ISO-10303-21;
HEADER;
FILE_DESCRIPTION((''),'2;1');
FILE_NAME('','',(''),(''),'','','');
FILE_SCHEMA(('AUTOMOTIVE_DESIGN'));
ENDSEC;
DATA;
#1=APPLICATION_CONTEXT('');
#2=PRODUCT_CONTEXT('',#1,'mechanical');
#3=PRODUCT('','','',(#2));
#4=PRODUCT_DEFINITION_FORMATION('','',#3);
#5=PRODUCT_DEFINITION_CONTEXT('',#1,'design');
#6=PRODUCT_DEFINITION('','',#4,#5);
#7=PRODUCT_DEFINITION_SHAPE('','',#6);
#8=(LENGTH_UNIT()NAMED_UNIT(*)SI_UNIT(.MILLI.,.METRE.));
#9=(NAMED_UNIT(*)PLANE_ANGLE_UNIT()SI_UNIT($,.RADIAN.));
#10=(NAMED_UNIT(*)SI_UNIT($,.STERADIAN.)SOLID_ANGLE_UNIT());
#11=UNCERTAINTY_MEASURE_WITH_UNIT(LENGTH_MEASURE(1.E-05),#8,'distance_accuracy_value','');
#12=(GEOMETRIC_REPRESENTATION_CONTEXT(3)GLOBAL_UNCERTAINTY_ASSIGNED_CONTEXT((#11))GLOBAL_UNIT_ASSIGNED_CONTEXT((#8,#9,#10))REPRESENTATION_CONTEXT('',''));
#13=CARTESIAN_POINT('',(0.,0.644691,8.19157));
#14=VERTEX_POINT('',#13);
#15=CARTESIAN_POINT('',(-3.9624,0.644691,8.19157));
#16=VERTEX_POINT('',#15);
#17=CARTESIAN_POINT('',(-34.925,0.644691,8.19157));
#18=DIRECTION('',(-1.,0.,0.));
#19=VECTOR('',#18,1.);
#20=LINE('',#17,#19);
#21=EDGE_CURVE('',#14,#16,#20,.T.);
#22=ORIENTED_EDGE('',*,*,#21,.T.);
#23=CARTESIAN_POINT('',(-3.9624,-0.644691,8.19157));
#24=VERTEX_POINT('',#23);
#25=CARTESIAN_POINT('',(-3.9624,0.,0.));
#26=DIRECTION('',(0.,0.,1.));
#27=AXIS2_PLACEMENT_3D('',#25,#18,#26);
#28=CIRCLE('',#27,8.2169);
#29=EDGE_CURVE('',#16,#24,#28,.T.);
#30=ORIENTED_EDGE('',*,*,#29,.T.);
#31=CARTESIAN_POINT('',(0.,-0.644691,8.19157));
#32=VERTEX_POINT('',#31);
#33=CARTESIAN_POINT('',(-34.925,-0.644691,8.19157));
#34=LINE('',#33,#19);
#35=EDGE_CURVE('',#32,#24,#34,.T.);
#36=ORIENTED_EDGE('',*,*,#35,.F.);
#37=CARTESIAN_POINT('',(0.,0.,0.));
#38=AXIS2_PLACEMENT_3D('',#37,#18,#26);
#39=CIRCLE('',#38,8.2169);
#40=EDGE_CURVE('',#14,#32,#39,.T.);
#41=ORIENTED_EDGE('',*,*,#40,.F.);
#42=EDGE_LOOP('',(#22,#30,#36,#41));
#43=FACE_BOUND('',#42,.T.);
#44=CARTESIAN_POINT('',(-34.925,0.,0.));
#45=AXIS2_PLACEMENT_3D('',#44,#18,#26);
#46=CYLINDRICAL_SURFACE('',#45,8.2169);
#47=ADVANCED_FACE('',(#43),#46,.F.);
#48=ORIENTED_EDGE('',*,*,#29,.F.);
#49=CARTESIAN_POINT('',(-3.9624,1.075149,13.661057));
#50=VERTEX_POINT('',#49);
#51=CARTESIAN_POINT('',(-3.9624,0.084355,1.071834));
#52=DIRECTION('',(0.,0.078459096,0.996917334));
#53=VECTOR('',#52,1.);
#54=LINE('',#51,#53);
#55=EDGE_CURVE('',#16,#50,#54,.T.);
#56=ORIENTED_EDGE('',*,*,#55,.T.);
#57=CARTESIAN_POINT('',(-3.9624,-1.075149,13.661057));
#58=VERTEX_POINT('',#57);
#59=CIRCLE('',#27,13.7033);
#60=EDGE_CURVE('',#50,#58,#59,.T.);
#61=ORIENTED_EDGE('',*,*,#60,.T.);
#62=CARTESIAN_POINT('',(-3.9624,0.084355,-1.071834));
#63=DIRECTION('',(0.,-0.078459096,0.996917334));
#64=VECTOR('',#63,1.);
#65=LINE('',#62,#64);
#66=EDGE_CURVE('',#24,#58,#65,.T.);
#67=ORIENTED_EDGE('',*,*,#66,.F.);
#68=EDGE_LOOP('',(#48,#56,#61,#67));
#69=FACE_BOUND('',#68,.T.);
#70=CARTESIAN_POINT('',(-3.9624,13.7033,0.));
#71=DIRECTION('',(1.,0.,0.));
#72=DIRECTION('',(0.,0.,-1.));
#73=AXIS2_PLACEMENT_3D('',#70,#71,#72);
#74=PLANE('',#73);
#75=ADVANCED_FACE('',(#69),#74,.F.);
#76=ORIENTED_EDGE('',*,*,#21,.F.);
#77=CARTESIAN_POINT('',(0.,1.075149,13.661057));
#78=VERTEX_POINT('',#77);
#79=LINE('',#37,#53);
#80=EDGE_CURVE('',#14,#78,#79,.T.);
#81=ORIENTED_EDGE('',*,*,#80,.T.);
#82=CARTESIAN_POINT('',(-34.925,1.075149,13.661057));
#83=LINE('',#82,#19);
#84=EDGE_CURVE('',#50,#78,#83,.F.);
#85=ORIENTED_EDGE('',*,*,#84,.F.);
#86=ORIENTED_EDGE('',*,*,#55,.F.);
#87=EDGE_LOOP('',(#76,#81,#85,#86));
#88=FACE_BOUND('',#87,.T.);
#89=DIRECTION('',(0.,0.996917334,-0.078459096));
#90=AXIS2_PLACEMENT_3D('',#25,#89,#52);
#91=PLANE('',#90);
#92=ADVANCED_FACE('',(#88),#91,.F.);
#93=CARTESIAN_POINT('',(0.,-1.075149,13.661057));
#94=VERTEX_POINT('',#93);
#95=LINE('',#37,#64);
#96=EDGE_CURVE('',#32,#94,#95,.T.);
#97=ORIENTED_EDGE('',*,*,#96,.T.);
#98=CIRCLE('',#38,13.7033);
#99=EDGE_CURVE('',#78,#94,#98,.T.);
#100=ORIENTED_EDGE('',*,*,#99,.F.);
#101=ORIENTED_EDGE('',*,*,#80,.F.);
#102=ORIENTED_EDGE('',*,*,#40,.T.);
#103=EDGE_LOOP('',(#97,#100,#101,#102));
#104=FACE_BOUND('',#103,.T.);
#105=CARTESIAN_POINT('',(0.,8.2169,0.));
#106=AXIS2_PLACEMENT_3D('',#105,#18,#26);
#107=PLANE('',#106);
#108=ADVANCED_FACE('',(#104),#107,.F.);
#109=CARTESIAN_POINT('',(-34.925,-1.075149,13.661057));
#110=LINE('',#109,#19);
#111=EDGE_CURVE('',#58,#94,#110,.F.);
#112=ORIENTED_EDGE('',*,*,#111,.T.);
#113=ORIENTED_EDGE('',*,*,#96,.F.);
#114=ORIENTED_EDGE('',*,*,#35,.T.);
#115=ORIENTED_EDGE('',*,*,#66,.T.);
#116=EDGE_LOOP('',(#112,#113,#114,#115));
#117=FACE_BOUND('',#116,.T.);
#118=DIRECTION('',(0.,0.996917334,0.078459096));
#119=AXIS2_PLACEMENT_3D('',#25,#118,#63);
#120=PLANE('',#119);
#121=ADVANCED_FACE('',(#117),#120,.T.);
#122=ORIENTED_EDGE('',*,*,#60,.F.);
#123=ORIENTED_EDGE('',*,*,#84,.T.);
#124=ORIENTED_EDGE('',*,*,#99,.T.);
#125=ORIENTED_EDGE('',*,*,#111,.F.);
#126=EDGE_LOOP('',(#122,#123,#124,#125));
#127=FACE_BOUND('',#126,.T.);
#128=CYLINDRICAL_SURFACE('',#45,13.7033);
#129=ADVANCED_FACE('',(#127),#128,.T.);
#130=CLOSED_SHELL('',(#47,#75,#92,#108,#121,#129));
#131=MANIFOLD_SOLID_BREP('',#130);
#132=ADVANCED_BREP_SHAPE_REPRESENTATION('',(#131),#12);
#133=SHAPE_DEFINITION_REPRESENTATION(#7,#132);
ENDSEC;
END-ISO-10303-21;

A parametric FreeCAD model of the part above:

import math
import FreeCAD as App
import Part
import Sketcher
Q = App.Units.Quantity

doc = App.newDocument("Part")
body = doc.addObject("PartDesign::Body", "Body")

# Sketch on XY plane
sketch1 = body.newObject("Sketcher::SketchObject", "Sketch")
sketch1.AttachmentSupport = (doc.getObject("XY_Plane"), [""])
sketch1.MapMode = "FlatFace"
sketch1.addGeometry(Part.LineSegment(App.Vector(-4, 13.7, 0), App.Vector(-4, 8.2, 0)), False)
sketch1.addGeometry(Part.LineSegment(App.Vector(-4, 8.2, 0), App.Vector(0, 8.2, 0)), False)
sketch1.addGeometry(Part.LineSegment(App.Vector(0, 8.2, 0), App.Vector(0, 13.7, 0)), False)
sketch1.addGeometry(Part.LineSegment(App.Vector(0, 13.7, 0), App.Vector(-4, 13.7, 0)), False)
sketch1.addConstraint(Sketcher.Constraint("Coincident", 0, 2, 1, 1))
sketch1.addConstraint(Sketcher.Constraint("Coincident", 1, 2, 2, 1))
sketch1.addConstraint(Sketcher.Constraint("Coincident", 2, 2, 3, 1))
sketch1.addConstraint(Sketcher.Constraint("Coincident", 3, 2, 0, 1))
sketch1.addConstraint(Sketcher.Constraint("Vertical", 0))
sketch1.addConstraint(Sketcher.Constraint("Horizontal", 1))
sketch1.addConstraint(Sketcher.Constraint("Vertical", 2))
sketch1.addConstraint(Sketcher.Constraint("Horizontal", 3))
sketch1.addConstraint(Sketcher.Constraint("PointOnObject", 1, 2, -2))
sketch1.addConstraint(Sketcher.Constraint("DistanceX", 1, 1, 1, 2, Q("0.156 in")))
sketch1.addConstraint(Sketcher.Constraint("DistanceY", 0, 2, 0, 1, Q("0.216 in")))
sketch1.addConstraint(Sketcher.Constraint("DistanceY", -1, 1, 0, 2, Q("0.3235 in")))
revolution = body.newObject("PartDesign::Revolution", "Revolution")
revolution.Profile = sketch1
revolution.ReferenceAxis = (sketch1, ["H_Axis"])
revolution.Angle = 360

# Sketch on YZ plane
sketch2 = body.newObject("Sketcher::SketchObject", "Sketch001")
sketch2.AttachmentSupport = (doc.getObject("YZ_Plane"), [""])
sketch2.MapMode = "FlatFace"
sketch2.addGeometry(Part.LineSegment(App.Vector(0, 0, 0), App.Vector(-1.1, 13.9, 0)), False)
sketch2.addGeometry(Part.ArcOfCircle(Part.Circle(App.Vector(0, 0, 0), App.Vector(0, 0, 1), 14), math.radians(85.5), math.radians(94.5)), False)
sketch2.addGeometry(Part.LineSegment(App.Vector(1.1, 13.9, 0), App.Vector(0, 0, 0)), False)
sketch2.addConstraint(Sketcher.Constraint("Coincident", 0, 2, 1, 2))
sketch2.addConstraint(Sketcher.Constraint("Coincident", 1, 1, 2, 1))
sketch2.addConstraint(Sketcher.Constraint("Coincident", 2, 2, 0, 1))
sketch2.addConstraint(Sketcher.Constraint("Coincident", 1, 3, -1, 1))
sketch2.addConstraint(Sketcher.Constraint("Coincident", 2, 2, -1, 1))
sketch2.addConstraint(Sketcher.Constraint("Horizontal", 0, 2, 1, 1))
sketch2.addConstraint(Sketcher.Constraint("Angle", 0, Q("94.5 deg")))
sketch2.addConstraint(Sketcher.Constraint("Radius", 1, 13.977366))
pocket1 = body.newObject("PartDesign::Pocket", "Pocket")
pocket1.Profile = sketch2
pocket1.Type = "ThroughAll"

doc.recompute()
